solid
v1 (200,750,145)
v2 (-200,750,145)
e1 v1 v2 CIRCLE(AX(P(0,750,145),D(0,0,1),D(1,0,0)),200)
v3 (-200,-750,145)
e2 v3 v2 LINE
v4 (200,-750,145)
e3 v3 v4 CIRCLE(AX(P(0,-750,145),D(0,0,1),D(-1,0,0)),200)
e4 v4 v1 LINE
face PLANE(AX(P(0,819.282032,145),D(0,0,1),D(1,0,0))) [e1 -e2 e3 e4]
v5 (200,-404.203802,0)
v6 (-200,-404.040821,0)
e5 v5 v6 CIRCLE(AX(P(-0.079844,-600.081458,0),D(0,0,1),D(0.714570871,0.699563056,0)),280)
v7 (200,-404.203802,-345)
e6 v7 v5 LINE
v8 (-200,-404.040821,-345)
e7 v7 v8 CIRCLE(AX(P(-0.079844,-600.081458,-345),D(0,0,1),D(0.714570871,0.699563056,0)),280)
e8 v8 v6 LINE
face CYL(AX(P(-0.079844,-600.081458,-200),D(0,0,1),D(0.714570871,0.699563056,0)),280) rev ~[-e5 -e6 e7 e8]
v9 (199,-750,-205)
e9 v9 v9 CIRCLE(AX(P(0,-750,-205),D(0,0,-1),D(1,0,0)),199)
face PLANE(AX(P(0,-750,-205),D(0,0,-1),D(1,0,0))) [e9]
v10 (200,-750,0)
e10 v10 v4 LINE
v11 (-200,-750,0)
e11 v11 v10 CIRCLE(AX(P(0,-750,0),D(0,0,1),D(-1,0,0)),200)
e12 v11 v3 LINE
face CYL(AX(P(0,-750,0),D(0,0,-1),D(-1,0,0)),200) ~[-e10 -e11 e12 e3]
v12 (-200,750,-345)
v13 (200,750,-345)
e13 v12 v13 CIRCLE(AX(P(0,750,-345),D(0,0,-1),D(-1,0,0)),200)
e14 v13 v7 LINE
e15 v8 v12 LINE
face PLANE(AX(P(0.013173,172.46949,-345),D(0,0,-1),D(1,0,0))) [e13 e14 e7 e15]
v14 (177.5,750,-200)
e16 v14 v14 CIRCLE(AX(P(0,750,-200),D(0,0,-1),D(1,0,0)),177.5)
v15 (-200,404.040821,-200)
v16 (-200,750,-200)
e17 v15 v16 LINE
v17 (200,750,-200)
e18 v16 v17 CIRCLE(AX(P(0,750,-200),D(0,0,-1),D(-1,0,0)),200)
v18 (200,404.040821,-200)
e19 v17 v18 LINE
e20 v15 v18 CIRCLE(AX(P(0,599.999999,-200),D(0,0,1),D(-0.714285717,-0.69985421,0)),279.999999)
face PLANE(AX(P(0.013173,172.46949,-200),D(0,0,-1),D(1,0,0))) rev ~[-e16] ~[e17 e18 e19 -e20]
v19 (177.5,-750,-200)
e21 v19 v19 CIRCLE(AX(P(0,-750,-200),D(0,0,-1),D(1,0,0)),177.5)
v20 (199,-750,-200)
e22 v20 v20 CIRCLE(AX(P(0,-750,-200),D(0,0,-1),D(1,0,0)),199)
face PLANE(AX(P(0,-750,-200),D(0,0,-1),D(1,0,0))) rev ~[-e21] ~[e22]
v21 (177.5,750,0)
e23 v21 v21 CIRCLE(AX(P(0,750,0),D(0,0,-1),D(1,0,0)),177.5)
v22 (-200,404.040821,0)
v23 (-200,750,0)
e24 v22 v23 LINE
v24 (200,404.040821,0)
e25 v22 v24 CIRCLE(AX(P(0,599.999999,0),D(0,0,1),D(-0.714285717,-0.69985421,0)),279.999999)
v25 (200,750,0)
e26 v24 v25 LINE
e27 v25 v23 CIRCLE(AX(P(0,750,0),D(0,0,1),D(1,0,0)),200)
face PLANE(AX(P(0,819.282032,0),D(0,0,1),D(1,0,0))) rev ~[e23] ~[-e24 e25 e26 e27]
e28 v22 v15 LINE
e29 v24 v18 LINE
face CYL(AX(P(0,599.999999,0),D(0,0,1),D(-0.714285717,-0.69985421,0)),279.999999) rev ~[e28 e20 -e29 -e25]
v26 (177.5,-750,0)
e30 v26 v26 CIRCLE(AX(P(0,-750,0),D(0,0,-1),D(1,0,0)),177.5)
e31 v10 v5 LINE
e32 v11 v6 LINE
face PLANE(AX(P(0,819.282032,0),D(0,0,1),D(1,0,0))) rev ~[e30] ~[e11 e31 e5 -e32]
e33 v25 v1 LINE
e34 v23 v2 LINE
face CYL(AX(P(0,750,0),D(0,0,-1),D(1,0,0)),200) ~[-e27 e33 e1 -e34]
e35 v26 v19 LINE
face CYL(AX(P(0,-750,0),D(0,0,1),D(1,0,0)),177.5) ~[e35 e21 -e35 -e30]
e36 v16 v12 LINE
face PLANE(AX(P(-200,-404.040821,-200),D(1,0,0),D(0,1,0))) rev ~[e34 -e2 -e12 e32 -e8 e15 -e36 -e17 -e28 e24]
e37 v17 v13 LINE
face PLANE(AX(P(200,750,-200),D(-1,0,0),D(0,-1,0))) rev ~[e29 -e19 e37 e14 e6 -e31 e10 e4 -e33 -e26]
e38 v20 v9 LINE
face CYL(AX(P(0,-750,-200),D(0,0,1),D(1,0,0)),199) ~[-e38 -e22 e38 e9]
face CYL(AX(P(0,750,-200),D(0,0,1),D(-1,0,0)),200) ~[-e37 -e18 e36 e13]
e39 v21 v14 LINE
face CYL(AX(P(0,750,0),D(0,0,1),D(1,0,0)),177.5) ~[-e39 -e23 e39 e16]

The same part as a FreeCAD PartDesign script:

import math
import FreeCAD as App
import Part
import Sketcher

V = App.Vector
Q = App.Units.Quantity

doc = App.newDocument("Part")
params = doc.addObject("Spreadsheet::Sheet", "Params")
for row, (alias, value) in enumerate([
    ("sketch1_radius", "200 mm"),
    ("sketch1_height", "1500 mm"),
    ("pad1_length", "145 mm"),
    ("sketch2_diameter", "355 mm"),
    ("sketch2_radius", "280 mm"),
    ("pad2_length", "200 mm"),
    ("sketch3_radius", "200 mm"),
    ("sketch3_radius2", "280 mm"),
    ("pad3_length", "145 mm"),
    ("sketch4_diameter", "398 mm"),
    ("pad4_length", "5 mm"),
], start=1):
    params.set(f"A{row}", alias)
    params.set(f"B{row}", "=" + value)
    params.setAlias(f"B{row}", alias)

body = doc.addObject("PartDesign::Body", "Body")

# Sketch on XY plane
sketch1 = doc.addObject("Sketcher::SketchObject", "Sketch")
body.addObject(sketch1)
sketch1.AttachmentSupport = (doc.XY_Plane, [""])
sketch1.MapMode = "FlatFace"
sketch1.addGeometry([
    Part.ArcOfCircle(Part.Circle(V(0, 750, 0), V(0, 0, 1), 200), math.radians(0), math.radians(180)),
    Part.LineSegment(V(-200, 750, 0), V(-200, -750, 0)),
    Part.ArcOfCircle(Part.Circle(V(0, -750, 0), V(0, 0, 1), 200), math.radians(180), math.radians(360)),
    Part.LineSegment(V(200, -750, 0), V(200, 750, 0)),
], False)
sketch1.addConstraint([
    Sketcher.Constraint("Tangent", 0, 2, 1, 1),
    Sketcher.Constraint("Tangent", 1, 2, 2, 1),
    Sketcher.Constraint("Tangent", 2, 2, 3, 1),
    Sketcher.Constraint("Tangent", 3, 2, 0, 1),
    Sketcher.Constraint("Vertical", 1),
    Sketcher.Constraint("Vertical", 3),
    Sketcher.Constraint("Symmetric", 0, 3, 2, 3, -1, 1),
    Sketcher.Constraint("Radius", 0, Q("200 mm")),
    Sketcher.Constraint("DistanceY", 1, 2, 1, 1, Q("1500 mm")),
])
sketch1.setExpression("Constraints[7]", "Params.sketch1_radius")
sketch1.setExpression("Constraints[8]", "Params.sketch1_height")
pad1 = doc.addObject("PartDesign::Pad", "Pad")
body.addObject(pad1)
pad1.Profile = sketch1
pad1.setExpression("Length", "Params.pad1_length")

# Sketch on XY plane
sketch2 = doc.addObject("Sketcher::SketchObject", "Sketch001")
body.addObject(sketch2)
sketch2.AttachmentSupport = (doc.XY_Plane, [""])
sketch2.MapMode = "FlatFace"
sketch2.addGeometry([
    Part.Circle(V(0, -750, 0), V(0, 0, 1), 178),  # 0
    Part.Circle(V(0, 750, 0), V(0, 0, 1), 178),  # 1
    Part.ArcOfCircle(Part.Circle(V(0, -600, 0), V(0, 0, 1), 280), math.radians(44), math.radians(136)),  # 2
    Part.LineSegment(V(-200, -404, 0), V(-200, 404, 0)),  # 3
    Part.ArcOfCircle(Part.Circle(V(0, 600, 0), V(0, 0, 1), 280), math.radians(-136), math.radians(-44)),  # 4
    Part.LineSegment(V(200, 404, 0), V(200, -404, 0)),  # 5
], False)
sketch2.addConstraint([
    Sketcher.Constraint("Coincident", 2, 2, 3, 1),
    Sketcher.Constraint("Coincident", 3, 2, 4, 1),
    Sketcher.Constraint("Coincident", 4, 2, 5, 1),
    Sketcher.Constraint("Coincident", 5, 2, 2, 1),
    Sketcher.Constraint("Vertical", 3),
    Sketcher.Constraint("Vertical", 5),
    Sketcher.Constraint("Equal", 0, 1),
    Sketcher.Constraint("Equal", 2, 4),
    Sketcher.Constraint("Symmetric", 0, 3, 1, 3, -1, 1),
    Sketcher.Constraint("Symmetric", 2, 2, 4, 2, -1, 1),
    Sketcher.Constraint("PointOnObject", 0, 3, -2),
    Sketcher.Constraint("PointOnObject", 4, 3, -2),
    Sketcher.Constraint("Diameter", 0, Q("355 mm")),
    Sketcher.Constraint("Radius", 2, Q("280 mm")),
    Sketcher.Constraint("DistanceY", 0, 3, -1, 1, Q("750 mm")),
    Sketcher.Constraint("DistanceY", -1, 1, 4, 3, Q("599.999999 mm")),
    Sketcher.Constraint("DistanceX", 3, 2, -1, 1, Q("200 mm")),
    Sketcher.Constraint("DistanceY", 5, 2, -1, 1, Q("404.203802 mm")),
])
sketch2.setExpression("Constraints[12]", "Params.sketch2_diameter")
sketch2.setExpression("Constraints[13]", "Params.sketch2_radius")
pad2 = doc.addObject("PartDesign::Pad", "Pad001")
body.addObject(pad2)
pad2.Profile = sketch2
pad2.setExpression("Length", "Params.pad2_length")
pad2.Reversed = True

# Sketch on XY plane
sketch3 = doc.addObject("Sketcher::SketchObject", "Sketch002")
body.addObject(sketch3)
sketch3.AttachmentSupport = (doc.XY_Plane, [""])
sketch3.MapMode = "FlatFace"
sketch3.AttachmentOffset = App.Placement(V(0, 0, -200), App.Rotation())
sketch3.addGeometry([
    Part.LineSegment(V(-200, -404, 0), V(-200, 750, 0)),
    Part.ArcOfCircle(Part.Circle(V(0, 750, 0), V(0, 0, 1), 200), math.radians(0), math.radians(180)),
    Part.LineSegment(V(200, 750, 0), V(200, -404, 0)),
    Part.ArcOfCircle(Part.Circle(V(0, -600, 0), V(0, 0, 1), 280), math.radians(44), math.radians(136)),
], False)
sketch3.addConstraint([
    Sketcher.Constraint("Tangent", 0, 2, 1, 2),
    Sketcher.Constraint("Tangent", 1, 1, 2, 1),
    Sketcher.Constraint("Coincident", 2, 2, 3, 1),
    Sketcher.Constraint("Coincident", 3, 2, 0, 1),
    Sketcher.Constraint("Vertical", 0),
    Sketcher.Constraint("Vertical", 2),
    Sketcher.Constraint("PointOnObject", 1, 3, -2),
    Sketcher.Constraint("Radius", 1, Q("200 mm")),
    Sketcher.Constraint("Radius", 3, Q("280 mm")),
    Sketcher.Constraint("DistanceY", -1, 1, 1, 3, Q("750 mm")),
    Sketcher.Constraint("DistanceY", 2, 2, 2, 1, Q("1154.203802 mm")),
    Sketcher.Constraint("DistanceY", 0, 1, 0, 2, Q("1154.040821 mm")),
])
sketch3.setExpression("Constraints[7]", "Params.sketch3_radius")
sketch3.setExpression("Constraints[8]", "Params.sketch3_radius2")
pad3 = doc.addObject("PartDesign::Pad", "Pad002")
body.addObject(pad3)
pad3.Profile = sketch3
pad3.setExpression("Length", "Params.pad3_length")
pad3.Reversed = True

# Sketch on XY plane
sketch4 = doc.addObject("Sketcher::SketchObject", "Sketch003")
body.addObject(sketch4)
sketch4.AttachmentSupport = (doc.XY_Plane, [""])
sketch4.MapMode = "FlatFace"
sketch4.AttachmentOffset = App.Placement(V(0, 0, -200), App.Rotation())
sketch4.addGeometry(Part.Circle(V(0, -750, 0), V(0, 0, 1), 199), False)
sketch4.addConstraint([
    Sketcher.Constraint("PointOnObject", 0, 3, -2),
    Sketcher.Constraint("Diameter", 0, Q("398 mm")),
    Sketcher.Constraint("DistanceY", 0, 3, -1, 1, Q("750 mm")),
])
sketch4.setExpression("Constraints[1]", "Params.sketch4_diameter")
pad4 = doc.addObject("PartDesign::Pad", "Pad003")
body.addObject(pad4)
pad4.Profile = sketch4
pad4.setExpression("Length", "Params.pad4_length")
pad4.Reversed = True

doc.recompute()
